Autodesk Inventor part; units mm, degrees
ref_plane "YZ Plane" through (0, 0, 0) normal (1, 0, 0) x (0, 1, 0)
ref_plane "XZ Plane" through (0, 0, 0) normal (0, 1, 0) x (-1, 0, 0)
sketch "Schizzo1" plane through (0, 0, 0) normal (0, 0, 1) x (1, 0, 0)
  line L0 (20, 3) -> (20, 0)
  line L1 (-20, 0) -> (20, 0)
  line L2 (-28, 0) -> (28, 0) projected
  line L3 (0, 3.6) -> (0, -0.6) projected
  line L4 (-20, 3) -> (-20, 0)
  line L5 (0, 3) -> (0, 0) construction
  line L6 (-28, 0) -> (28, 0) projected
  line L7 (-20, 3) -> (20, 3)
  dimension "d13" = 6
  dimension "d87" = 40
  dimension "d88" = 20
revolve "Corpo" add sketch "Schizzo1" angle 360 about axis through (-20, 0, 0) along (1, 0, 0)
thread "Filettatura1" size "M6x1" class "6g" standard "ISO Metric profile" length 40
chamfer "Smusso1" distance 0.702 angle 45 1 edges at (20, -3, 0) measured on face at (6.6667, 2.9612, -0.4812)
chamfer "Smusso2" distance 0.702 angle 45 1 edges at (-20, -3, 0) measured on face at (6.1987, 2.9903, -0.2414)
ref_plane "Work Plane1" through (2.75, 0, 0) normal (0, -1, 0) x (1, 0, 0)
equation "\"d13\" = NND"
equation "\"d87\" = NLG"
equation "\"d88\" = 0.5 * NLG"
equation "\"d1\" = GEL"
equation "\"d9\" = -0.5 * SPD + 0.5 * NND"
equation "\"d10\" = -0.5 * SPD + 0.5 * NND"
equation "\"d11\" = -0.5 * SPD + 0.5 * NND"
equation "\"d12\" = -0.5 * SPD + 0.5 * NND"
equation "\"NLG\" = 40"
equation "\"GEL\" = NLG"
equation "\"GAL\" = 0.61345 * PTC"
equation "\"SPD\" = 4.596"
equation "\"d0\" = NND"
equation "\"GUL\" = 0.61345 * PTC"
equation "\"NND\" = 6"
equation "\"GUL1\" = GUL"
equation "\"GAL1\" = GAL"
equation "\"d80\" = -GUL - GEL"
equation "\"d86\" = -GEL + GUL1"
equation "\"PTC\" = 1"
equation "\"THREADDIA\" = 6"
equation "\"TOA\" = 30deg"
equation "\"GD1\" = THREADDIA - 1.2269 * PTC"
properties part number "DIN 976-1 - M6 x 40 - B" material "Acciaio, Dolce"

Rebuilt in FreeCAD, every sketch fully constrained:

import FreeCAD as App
import Part
import Sketcher
from FreeCAD import Vector


def edges_at(feature, points):
    """Names of the edges that pass closest to the given points."""
    edges = feature.Shape.Edges
    near = lambda p: min(range(len(edges)), key=lambda i: edges[i].distToShape(Part.Vertex(*p))[0])
    return sorted({f"Edge{near(p) + 1}" for p in points})


def add_polygon(sketch, points):
    """Adds a closed chain of lines whose ends are joined by coincident constraints."""
    first, n = sketch.GeometryCount, len(points)
    for a, b in zip(points, points[1:] + points[:1]):
        sketch.addGeometry(Part.LineSegment(App.Vector(*a, 0), App.Vector(*b, 0)), False)
    for i in range(n):
        sketch.addConstraint(Sketcher.Constraint("Coincident", first + i, 2, first + (i + 1) % n, 1))

doc = App.newDocument("Part")
params = doc.addObject("Spreadsheet::Sheet", "Params")
for row, (alias, value) in enumerate([
    ("sketch1_width", "40 mm"),
    ("sketch1_height", "3 mm"),
    ("revolution_angle", "360 deg"),
    ("chamfer_size", "0.702 mm"),
    ("chamfer2_size", "0.702 mm"),
], start=1):
    params.set(f"A{row}", alias)
    params.set(f"B{row}", "=" + value)
    params.setAlias(f"B{row}", alias)

body = doc.addObject("PartDesign::Body", "Body")

sketch1 = doc.addObject("Sketcher::SketchObject", "Sketch")
body.addObject(sketch1)
sketch1.AttachmentSupport = (doc.XY_Plane, [""])
sketch1.MapMode = "FlatFace"
add_polygon(sketch1, [(20, 0), (20, 3), (-20, 3), (-20, 0)])
sketch1.addConstraint([
    Sketcher.Constraint("Vertical", 0),
    Sketcher.Constraint("Horizontal", 1),
    Sketcher.Constraint("Vertical", 2),
    Sketcher.Constraint("Horizontal", 3),
    Sketcher.Constraint("Symmetric", 2, 2, 3, 2, -1, 1),
    Sketcher.Constraint("DistanceX", 1, 2, 1, 1, 40.0),
    Sketcher.Constraint("DistanceY", 0, 1, 0, 2, 3.0),
])
sketch1.setExpression("Constraints[9]", "Params.sketch1_width")
sketch1.setExpression("Constraints[10]", "Params.sketch1_height")
revolution = doc.addObject("PartDesign::Revolution", "Revolution")
body.addObject(revolution)
revolution.Profile = sketch1
revolution.ReferenceAxis = (sketch1, ["H_Axis"])
revolution.setExpression("Angle", "Params.revolution_angle")
doc.recompute()

chamfer = doc.addObject("PartDesign::Chamfer", "Chamfer")
body.addObject(chamfer)
chamfer.Base = (revolution, edges_at(revolution, [(20, -3, 0)]))
chamfer.setExpression("Size", "Params.chamfer_size")
doc.recompute()

chamfer2 = doc.addObject("PartDesign::Chamfer", "Chamfer001")
body.addObject(chamfer2)
chamfer2.Base = (chamfer, edges_at(chamfer, [(-20, -3, 0)]))
chamfer2.setExpression("Size", "Params.chamfer2_size")

doc.recompute()
